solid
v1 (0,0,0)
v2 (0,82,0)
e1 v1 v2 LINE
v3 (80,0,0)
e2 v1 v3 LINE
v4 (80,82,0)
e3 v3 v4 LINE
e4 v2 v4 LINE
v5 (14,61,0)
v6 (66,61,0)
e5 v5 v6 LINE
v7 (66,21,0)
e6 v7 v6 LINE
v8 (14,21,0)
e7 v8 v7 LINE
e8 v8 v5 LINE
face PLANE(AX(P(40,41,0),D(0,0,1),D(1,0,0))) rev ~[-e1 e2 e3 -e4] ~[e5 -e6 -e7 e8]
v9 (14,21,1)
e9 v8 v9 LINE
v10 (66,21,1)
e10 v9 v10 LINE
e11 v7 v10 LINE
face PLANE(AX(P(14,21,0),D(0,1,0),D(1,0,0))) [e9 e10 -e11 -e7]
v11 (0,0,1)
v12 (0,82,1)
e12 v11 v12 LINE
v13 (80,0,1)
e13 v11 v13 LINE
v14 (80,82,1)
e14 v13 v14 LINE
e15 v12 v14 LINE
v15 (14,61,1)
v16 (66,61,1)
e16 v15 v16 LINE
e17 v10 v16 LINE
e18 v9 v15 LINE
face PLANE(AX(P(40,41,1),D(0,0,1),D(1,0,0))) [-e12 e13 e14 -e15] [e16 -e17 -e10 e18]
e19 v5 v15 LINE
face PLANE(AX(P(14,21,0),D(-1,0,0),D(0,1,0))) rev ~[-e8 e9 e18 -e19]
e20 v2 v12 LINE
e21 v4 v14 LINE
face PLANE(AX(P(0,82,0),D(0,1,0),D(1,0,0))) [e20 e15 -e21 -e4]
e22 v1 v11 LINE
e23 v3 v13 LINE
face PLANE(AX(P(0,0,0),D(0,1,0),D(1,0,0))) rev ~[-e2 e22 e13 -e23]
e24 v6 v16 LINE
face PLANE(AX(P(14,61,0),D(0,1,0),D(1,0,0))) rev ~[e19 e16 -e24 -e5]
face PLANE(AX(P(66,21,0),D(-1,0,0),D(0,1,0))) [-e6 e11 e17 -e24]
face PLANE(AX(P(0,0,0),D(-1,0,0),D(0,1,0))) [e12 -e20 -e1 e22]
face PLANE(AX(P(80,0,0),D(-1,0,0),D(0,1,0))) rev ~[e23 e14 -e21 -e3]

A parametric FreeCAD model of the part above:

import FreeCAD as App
import Part
import Sketcher
from FreeCAD import Vector


def add_polygon(sketch, points):
    """Adds a closed chain of lines whose ends are joined by coincident constraints."""
    first, n = sketch.GeometryCount, len(points)
    for a, b in zip(points, points[1:] + points[:1]):
        sketch.addGeometry(Part.LineSegment(App.Vector(*a, 0), App.Vector(*b, 0)), False)
    for i in range(n):
        sketch.addConstraint(Sketcher.Constraint("Coincident", first + i, 2, first + (i + 1) % n, 1))

doc = App.newDocument("Part")
body = doc.addObject("PartDesign::Body", "Body")

# Sketch on XY plane
sketch1 = doc.addObject("Sketcher::SketchObject", "Sketch")
body.addObject(sketch1)
sketch1.AttachmentSupport = (doc.XY_Plane, [""])
sketch1.MapMode = "FlatFace"
add_polygon(sketch1, [(0, 82), (0, 0), (80, 0), (80, 82)])  # lines 0-3
add_polygon(sketch1, [(66, 21), (14, 21), (14, 61), (66, 61)])  # lines 4-7
sketch1.addConstraint([
    Sketcher.Constraint("Vertical", 0),
    Sketcher.Constraint("Horizontal", 1),
    Sketcher.Constraint("Vertical", 2),
    Sketcher.Constraint("Horizontal", 3),
    Sketcher.Constraint("Horizontal", 4),
    Sketcher.Constraint("Vertical", 5),
    Sketcher.Constraint("Horizontal", 6),
    Sketcher.Constraint("Vertical", 7),
    Sketcher.Constraint("Coincident", 0, 2, -1, 1),
    Sketcher.Constraint("DistanceX", 1, 1, 1, 2, 80.0),
    Sketcher.Constraint("DistanceX", 4, 2, 4, 1, 52.0),
    Sketcher.Constraint("DistanceY", 0, 2, 0, 1, 82.0),
    Sketcher.Constraint("DistanceY", 5, 1, 5, 2, 40.0),
    Sketcher.Constraint("DistanceX", -1, 1, 4, 2, 14.0),
    Sketcher.Constraint("DistanceY", -1, 1, 4, 2, 21.0),
])
pad1 = doc.addObject("PartDesign::Pad", "Pad")
body.addObject(pad1)
pad1.Profile = sketch1
pad1.Length = 1

doc.recompute()
